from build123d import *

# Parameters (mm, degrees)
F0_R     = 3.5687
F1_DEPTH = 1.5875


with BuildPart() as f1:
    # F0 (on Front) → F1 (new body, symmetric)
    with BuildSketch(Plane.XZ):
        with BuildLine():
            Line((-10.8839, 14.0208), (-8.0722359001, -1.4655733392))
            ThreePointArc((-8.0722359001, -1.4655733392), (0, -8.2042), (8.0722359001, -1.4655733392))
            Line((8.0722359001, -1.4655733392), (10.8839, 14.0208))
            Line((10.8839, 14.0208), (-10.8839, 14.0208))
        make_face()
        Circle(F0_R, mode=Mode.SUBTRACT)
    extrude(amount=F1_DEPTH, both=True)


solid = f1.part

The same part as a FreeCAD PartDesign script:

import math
import FreeCAD as App
import Part
import Sketcher

V = App.Vector
Q = App.Units.Quantity

doc = App.newDocument("Part")
body = doc.addObject("PartDesign::Body", "Body")

sketch1 = body.newObject("Sketcher::SketchObject", "Sketch")
sketch1.AttachmentSupport = (doc.getObject("XZ_Plane"), [""])
sketch1.MapMode = "FlatFace"
sketch1.addGeometry(Part.LineSegment(V(-10.9, 14, 0), V(-8.1, -1.5, 0)), False)
sketch1.addGeometry(Part.ArcOfCircle(Part.Circle(V(0, 0, 0), V(0, 0, 1), 8.2), math.radians(-170), math.radians(-10)), False)
sketch1.addGeometry(Part.LineSegment(V(8.1, -1.5, 0), V(10.9, 14, 0)), False)
sketch1.addGeometry(Part.LineSegment(V(10.9, 14, 0), V(-10.9, 14, 0)), False)
sketch1.addGeometry(Part.Circle(V(0, 0, 0), V(0, 0, 1), 3.6), False)
sketch1.addConstraint(Sketcher.Constraint("Tangent", 0, 2, 1, 1))
sketch1.addConstraint(Sketcher.Constraint("Tangent", 1, 2, 2, 1))
sketch1.addConstraint(Sketcher.Constraint("Coincident", 2, 2, 3, 1))
sketch1.addConstraint(Sketcher.Constraint("Coincident", 3, 2, 0, 1))
sketch1.addConstraint(Sketcher.Constraint("Horizontal", 3))
sketch1.addConstraint(Sketcher.Constraint("Coincident", 1, 3, -1, 1))
sketch1.addConstraint(Sketcher.Constraint("Coincident", 4, 3, -1, 1))
sketch1.addConstraint(Sketcher.Constraint("Horizontal", 0, 2, 1, 2))
sketch1.addConstraint(Sketcher.Constraint("Diameter", 4, Q("0.281 in")))
sketch1.addConstraint(Sketcher.Constraint("Radius", 1, Q("0.323 in")))
sketch1.addConstraint(Sketcher.Constraint("DistanceX", 3, 2, 3, 1, Q("0.857 in")))
sketch1.addConstraint(Sketcher.Constraint("DistanceY", -1, 1, 2, 2, Q("0.552 in")))
pad1 = body.newObject("PartDesign::Pad", "Pad")
pad1.Profile = sketch1
pad1.Length = Q("0.125 in")
pad1.Midplane = True

doc.recompute()
